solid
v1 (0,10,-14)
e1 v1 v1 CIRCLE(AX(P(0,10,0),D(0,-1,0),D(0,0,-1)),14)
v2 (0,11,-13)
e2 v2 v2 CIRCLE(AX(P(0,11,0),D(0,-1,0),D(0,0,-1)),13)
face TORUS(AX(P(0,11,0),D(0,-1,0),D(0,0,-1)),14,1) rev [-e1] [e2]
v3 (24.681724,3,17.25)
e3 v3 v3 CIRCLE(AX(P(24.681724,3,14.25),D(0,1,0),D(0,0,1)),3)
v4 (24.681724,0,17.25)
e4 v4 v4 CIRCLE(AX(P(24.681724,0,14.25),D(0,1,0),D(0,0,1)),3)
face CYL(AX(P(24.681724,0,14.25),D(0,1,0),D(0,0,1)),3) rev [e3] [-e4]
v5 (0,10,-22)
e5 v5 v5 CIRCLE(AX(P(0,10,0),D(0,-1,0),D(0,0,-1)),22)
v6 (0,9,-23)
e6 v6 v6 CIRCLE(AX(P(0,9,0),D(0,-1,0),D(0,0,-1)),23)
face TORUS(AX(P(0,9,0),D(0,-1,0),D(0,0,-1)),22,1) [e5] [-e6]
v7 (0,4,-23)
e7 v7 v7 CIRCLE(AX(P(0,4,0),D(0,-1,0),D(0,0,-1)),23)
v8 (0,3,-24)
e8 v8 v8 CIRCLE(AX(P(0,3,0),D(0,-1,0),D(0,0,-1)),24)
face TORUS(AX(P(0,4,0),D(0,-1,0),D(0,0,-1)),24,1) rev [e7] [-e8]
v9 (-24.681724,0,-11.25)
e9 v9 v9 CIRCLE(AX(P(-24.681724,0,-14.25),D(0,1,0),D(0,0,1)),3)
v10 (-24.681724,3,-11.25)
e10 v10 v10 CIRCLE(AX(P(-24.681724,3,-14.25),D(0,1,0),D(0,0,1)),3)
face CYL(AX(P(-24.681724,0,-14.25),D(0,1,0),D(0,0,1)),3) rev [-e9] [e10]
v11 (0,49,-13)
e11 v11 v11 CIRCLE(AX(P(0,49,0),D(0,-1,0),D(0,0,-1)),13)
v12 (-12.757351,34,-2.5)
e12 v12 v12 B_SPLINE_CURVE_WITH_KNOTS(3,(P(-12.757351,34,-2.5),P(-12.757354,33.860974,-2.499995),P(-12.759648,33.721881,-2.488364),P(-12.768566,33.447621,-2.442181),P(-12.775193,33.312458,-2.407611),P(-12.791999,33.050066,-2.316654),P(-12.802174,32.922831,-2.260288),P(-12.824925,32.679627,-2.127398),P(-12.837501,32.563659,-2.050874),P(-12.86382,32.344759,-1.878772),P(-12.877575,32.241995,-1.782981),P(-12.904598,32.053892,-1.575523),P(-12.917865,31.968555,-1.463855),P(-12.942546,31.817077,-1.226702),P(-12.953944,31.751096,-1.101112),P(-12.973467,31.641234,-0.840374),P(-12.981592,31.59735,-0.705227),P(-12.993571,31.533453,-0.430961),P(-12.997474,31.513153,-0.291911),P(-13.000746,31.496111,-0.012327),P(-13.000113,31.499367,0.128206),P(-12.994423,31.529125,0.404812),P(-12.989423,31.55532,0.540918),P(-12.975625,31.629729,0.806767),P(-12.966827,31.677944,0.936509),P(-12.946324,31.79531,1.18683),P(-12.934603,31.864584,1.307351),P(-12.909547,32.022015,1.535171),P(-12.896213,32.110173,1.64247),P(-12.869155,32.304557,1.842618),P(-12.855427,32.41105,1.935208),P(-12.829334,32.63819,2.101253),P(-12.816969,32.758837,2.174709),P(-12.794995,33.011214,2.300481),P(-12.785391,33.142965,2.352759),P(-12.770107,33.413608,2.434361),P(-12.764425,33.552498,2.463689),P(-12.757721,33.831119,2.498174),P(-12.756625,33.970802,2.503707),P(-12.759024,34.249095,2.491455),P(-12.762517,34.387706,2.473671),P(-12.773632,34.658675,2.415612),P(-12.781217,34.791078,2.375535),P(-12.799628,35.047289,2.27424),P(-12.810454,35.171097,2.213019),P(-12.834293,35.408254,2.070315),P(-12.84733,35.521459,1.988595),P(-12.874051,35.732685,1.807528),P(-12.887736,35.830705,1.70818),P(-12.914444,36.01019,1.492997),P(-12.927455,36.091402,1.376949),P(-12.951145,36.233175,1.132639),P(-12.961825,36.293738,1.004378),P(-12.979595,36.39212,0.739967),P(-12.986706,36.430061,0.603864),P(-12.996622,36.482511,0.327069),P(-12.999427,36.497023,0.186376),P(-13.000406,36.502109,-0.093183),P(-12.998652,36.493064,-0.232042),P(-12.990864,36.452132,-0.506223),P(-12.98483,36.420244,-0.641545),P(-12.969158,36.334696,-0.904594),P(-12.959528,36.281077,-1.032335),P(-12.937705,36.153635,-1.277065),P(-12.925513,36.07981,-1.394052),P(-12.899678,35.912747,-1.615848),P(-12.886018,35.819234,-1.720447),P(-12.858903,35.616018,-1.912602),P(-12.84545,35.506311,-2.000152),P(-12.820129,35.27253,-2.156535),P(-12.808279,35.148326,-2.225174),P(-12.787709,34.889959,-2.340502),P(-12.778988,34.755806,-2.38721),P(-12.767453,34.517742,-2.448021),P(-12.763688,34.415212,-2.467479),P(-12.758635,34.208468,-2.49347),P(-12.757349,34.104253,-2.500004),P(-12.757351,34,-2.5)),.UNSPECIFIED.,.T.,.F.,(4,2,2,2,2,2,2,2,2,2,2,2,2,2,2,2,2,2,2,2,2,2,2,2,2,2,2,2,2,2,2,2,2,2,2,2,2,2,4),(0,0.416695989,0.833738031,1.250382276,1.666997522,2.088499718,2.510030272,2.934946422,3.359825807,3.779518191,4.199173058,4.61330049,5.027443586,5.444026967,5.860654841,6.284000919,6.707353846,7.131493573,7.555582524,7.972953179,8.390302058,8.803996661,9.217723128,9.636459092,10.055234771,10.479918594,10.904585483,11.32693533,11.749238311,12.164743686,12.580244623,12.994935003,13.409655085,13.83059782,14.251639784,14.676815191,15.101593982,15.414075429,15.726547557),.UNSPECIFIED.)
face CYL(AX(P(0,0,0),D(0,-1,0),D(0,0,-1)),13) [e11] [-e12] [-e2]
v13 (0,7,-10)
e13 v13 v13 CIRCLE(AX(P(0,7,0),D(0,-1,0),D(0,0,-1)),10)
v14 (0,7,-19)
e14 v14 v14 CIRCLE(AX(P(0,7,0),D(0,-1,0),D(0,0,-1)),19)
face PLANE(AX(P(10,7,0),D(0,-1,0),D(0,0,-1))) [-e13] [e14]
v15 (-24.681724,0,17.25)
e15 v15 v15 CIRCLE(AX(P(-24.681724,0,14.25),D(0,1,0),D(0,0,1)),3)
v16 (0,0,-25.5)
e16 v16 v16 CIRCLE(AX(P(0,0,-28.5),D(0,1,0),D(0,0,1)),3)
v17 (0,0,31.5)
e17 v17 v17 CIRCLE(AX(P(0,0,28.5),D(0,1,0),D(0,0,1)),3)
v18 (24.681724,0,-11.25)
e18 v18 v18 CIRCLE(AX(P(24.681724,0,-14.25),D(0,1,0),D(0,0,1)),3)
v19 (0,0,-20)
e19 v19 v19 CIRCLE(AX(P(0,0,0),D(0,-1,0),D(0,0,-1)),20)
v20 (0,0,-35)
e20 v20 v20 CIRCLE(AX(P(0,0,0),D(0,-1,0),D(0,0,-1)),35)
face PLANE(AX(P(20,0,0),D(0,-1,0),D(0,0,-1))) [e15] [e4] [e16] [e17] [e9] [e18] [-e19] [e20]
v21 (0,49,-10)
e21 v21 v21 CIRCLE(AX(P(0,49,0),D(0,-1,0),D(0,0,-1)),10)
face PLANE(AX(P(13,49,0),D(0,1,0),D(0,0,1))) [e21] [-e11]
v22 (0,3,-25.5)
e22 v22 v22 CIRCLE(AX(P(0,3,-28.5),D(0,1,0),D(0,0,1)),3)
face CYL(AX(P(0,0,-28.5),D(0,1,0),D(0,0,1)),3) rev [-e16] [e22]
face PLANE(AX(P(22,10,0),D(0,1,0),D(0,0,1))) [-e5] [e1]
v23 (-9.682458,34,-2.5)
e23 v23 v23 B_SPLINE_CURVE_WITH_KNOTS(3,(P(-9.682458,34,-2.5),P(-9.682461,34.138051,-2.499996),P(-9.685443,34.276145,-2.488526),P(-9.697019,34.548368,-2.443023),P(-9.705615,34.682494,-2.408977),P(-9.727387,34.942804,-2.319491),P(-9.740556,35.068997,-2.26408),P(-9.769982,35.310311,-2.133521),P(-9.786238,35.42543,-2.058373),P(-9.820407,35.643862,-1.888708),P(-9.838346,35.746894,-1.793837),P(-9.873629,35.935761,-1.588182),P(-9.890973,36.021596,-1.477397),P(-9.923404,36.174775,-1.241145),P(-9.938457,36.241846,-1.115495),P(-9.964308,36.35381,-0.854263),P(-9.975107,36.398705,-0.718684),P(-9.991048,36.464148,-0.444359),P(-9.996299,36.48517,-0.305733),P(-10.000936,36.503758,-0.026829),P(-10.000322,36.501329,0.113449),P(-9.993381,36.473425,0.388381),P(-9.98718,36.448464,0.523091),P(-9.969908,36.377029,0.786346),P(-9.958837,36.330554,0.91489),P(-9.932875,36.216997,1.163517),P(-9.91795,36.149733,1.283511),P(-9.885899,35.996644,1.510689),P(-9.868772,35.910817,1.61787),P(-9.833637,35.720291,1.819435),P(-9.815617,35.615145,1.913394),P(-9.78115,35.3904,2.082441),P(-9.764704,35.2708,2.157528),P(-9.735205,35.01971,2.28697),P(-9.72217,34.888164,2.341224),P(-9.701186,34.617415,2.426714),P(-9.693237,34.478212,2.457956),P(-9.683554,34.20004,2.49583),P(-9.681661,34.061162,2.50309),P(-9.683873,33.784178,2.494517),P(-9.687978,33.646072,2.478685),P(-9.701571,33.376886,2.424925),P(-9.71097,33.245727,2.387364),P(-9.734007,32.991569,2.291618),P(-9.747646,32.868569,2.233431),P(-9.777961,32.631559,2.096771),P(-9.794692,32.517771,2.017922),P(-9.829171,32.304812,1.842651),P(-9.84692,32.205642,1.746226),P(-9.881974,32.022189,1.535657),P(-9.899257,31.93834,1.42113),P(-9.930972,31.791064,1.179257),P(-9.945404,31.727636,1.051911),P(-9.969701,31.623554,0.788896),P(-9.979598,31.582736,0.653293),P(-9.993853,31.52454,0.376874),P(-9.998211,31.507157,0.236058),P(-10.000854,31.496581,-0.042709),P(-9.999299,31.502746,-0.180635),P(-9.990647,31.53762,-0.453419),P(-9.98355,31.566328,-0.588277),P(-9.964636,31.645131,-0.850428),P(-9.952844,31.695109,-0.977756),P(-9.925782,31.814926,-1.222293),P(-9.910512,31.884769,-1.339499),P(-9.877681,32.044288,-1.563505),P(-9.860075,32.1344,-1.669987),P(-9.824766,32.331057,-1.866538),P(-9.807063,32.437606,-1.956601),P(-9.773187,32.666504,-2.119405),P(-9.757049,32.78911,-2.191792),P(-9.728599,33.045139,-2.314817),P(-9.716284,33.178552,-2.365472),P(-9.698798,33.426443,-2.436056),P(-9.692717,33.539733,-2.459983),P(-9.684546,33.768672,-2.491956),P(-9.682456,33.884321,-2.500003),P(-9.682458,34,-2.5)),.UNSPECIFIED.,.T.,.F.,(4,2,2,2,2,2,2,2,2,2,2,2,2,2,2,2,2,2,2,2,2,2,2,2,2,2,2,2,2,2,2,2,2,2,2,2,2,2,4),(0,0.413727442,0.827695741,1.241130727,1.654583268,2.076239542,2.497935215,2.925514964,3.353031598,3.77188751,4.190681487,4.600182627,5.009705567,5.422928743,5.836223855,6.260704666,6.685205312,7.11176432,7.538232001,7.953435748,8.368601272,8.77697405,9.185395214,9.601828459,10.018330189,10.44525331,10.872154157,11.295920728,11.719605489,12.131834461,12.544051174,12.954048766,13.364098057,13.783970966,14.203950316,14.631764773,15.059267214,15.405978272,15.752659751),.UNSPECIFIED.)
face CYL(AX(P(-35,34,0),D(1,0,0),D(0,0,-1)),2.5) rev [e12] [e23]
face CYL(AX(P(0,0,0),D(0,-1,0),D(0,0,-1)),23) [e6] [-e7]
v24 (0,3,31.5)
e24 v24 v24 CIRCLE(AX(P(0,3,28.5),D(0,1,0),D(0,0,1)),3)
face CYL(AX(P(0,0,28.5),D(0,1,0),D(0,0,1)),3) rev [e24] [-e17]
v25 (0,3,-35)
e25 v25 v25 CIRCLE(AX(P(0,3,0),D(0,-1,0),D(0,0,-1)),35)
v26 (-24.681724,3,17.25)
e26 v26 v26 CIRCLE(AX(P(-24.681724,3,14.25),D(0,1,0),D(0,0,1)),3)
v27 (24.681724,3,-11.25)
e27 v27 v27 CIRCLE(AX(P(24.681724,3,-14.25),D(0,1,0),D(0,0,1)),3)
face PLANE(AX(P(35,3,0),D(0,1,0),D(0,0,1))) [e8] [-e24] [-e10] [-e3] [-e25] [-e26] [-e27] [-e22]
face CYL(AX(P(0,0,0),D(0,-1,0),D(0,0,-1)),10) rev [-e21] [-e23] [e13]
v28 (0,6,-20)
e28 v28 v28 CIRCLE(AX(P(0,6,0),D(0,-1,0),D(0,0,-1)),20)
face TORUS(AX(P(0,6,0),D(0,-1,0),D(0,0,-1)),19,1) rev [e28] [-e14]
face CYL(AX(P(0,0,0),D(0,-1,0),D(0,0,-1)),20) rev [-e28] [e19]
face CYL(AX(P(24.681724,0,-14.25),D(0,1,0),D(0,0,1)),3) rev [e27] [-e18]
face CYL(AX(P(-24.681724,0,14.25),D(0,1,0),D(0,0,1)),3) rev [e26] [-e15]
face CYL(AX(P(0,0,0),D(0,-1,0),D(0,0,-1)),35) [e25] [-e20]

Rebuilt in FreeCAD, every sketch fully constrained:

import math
import FreeCAD as App
import Part
import Sketcher
from FreeCAD import Vector
Q = App.Units.Quantity

doc = App.newDocument("Part")
body = doc.addObject("PartDesign::Body", "Body")

# Sketch on XY plane
sketch1 = doc.addObject("Sketcher::SketchObject", "Sketch")
body.addObject(sketch1)
sketch1.AttachmentSupport = (doc.XY_Plane, [""])
sketch1.MapMode = "FlatFace"
sketch1.addGeometry([
    Part.LineSegment(Vector(20, 0, 0), Vector(35, 0, 0)),  # 0
    Part.LineSegment(Vector(35, 0, 0), Vector(35, 3, 0)),  # 1
    Part.LineSegment(Vector(35, 3, 0), Vector(24, 3, 0)),  # 2
    Part.ArcOfCircle(Part.Circle(Vector(24, 4, 0), Vector(0, 0, 1), 1), math.radians(-180), math.radians(-90)),  # 3
    Part.LineSegment(Vector(23, 4, 0), Vector(23, 9, 0)),  # 4
    Part.ArcOfCircle(Part.Circle(Vector(22, 9, 0), Vector(0, 0, 1), 1), math.radians(0), math.radians(90)),  # 5
    Part.LineSegment(Vector(22, 10, 0), Vector(14, 10, 0)),  # 6
    Part.ArcOfCircle(Part.Circle(Vector(14, 11, 0), Vector(0, 0, 1), 1), math.radians(-180), math.radians(-90)),  # 7
    Part.LineSegment(Vector(13, 11, 0), Vector(13, 49, 0)),  # 8
    Part.LineSegment(Vector(13, 49, 0), Vector(10, 49, 0)),  # 9
    Part.LineSegment(Vector(10, 49, 0), Vector(10, 7, 0)),  # 10
    Part.LineSegment(Vector(10, 7, 0), Vector(19, 7, 0)),  # 11
    Part.ArcOfCircle(Part.Circle(Vector(19, 6, 0), Vector(0, 0, 1), 1), math.radians(0), math.radians(90)),  # 12
    Part.LineSegment(Vector(20, 6, 0), Vector(20, 0, 0)),  # 13
], False)
sketch1.addConstraint([
    Sketcher.Constraint("Coincident", 0, 2, 1, 1),
    Sketcher.Constraint("Coincident", 1, 2, 2, 1),
    Sketcher.Constraint("Tangent", 2, 2, 3, 2),
    Sketcher.Constraint("Tangent", 3, 1, 4, 1),
    Sketcher.Constraint("Tangent", 4, 2, 5, 1),
    Sketcher.Constraint("Tangent", 5, 2, 6, 1),
    Sketcher.Constraint("Tangent", 6, 2, 7, 2),
    Sketcher.Constraint("Tangent", 7, 1, 8, 1),
    Sketcher.Constraint("Coincident", 8, 2, 9, 1),
    Sketcher.Constraint("Coincident", 9, 2, 10, 1),
    Sketcher.Constraint("Coincident", 10, 2, 11, 1),
    Sketcher.Constraint("Tangent", 11, 2, 12, 2),
    Sketcher.Constraint("Tangent", 12, 1, 13, 1),
    Sketcher.Constraint("Coincident", 13, 2, 0, 1),
    Sketcher.Constraint("Horizontal", 0),
    Sketcher.Constraint("Vertical", 1),
    Sketcher.Constraint("Horizontal", 2),
    Sketcher.Constraint("Vertical", 4),
    Sketcher.Constraint("Horizontal", 6),
    Sketcher.Constraint("Vertical", 8),
    Sketcher.Constraint("Horizontal", 9),
    Sketcher.Constraint("Vertical", 10),
    Sketcher.Constraint("Horizontal", 11),
    Sketcher.Constraint("Vertical", 13),
    Sketcher.Constraint("Equal", 3, 5),
    Sketcher.Constraint("Equal", 5, 7),
    Sketcher.Constraint("Equal", 7, 12),
    Sketcher.Constraint("PointOnObject", 0, 2, -1),
    Sketcher.Constraint("Equal", 9, 1),
    Sketcher.Constraint("Radius", 3, Q("1 mm")),
    Sketcher.Constraint("DistanceX", 0, 1, 0, 2, Q("15 mm")),
    Sketcher.Constraint("DistanceX", 2, 2, 2, 1, Q("11 mm")),
    Sketcher.Constraint("DistanceX", 6, 2, 6, 1, Q("8 mm")),
    Sketcher.Constraint("DistanceX", 9, 2, 9, 1, Q("3 mm")),
    Sketcher.Constraint("DistanceY", 4, 1, 4, 2, Q("5 mm")),
    Sketcher.Constraint("DistanceY", 8, 1, 8, 2, Q("38 mm")),
    Sketcher.Constraint("DistanceY", 10, 2, 10, 1, Q("42 mm")),
    Sketcher.Constraint("DistanceX", -1, 1, 3, 3, Q("24 mm")),
])
revolution = doc.addObject("PartDesign::Revolution", "Revolution")
body.addObject(revolution)
revolution.Profile = sketch1
revolution.ReferenceAxis = (sketch1, ["V_Axis"])
revolution.Angle = 360

# Sketch on XZ plane
sketch2 = doc.addObject("Sketcher::SketchObject", "Sketch001")
body.addObject(sketch2)
sketch2.AttachmentSupport = (doc.XZ_Plane, [""])
sketch2.MapMode = "FlatFace"
sketch2.AttachmentOffset = App.Placement(Vector(0, 0, -3), App.Rotation())
sketch2.addGeometry([
    Part.Circle(Vector(0, -28.5, 0), Vector(0, 0, 1), 3),  # 0
    Part.Circle(Vector(24.7, -14.2, 0), Vector(0, 0, 1), 3),  # 1
    Part.Circle(Vector(24.7, 14.2, 0), Vector(0, 0, 1), 3),  # 2
    Part.Circle(Vector(0, 28.5, 0), Vector(0, 0, 1), 3),  # 3
    Part.Circle(Vector(-24.7, 14.2, 0), Vector(0, 0, 1), 3),  # 4
    Part.Circle(Vector(-24.7, -14.2, 0), Vector(0, 0, 1), 3),  # 5
], False)
sketch2.addConstraint([
    Sketcher.Constraint("Equal", 0, 1),
    Sketcher.Constraint("Equal", 1, 2),
    Sketcher.Constraint("Equal", 2, 3),
    Sketcher.Constraint("Equal", 3, 4),
    Sketcher.Constraint("Equal", 4, 5),
    Sketcher.Constraint("Symmetric", 0, 3, 3, 3, -1, 1),
    Sketcher.Constraint("Symmetric", 1, 3, 4, 3, -1, 1),
    Sketcher.Constraint("Symmetric", 2, 3, 5, 3, -1, 1),
    Sketcher.Constraint("Symmetric", 2, 3, 4, 3, -2),
    Sketcher.Constraint("PointOnObject", 0, 3, -2),
    Sketcher.Constraint("Diameter", 0, Q("6 mm")),
    Sketcher.Constraint("DistanceY", 0, 3, 3, 3, Q("57 mm")),
    Sketcher.Constraint("DistanceY", 1, 3, 2, 3, Q("28.5 mm")),
    Sketcher.Constraint("DistanceX", 4, 3, 2, 3, Q("49.363448 mm")),
])
pocket1 = doc.addObject("PartDesign::Pocket", "Pocket")
body.addObject(pocket1)
pocket1.Profile = sketch2
pocket1.Type = "ThroughAll"
pocket1.Reversed = True

# Sketch on YZ plane
sketch3 = doc.addObject("Sketcher::SketchObject", "Sketch002")
body.addObject(sketch3)
sketch3.AttachmentSupport = (doc.YZ_Plane, [""])
sketch3.MapMode = "FlatFace"
sketch3.addGeometry(Part.Circle(Vector(34, 0, 0), Vector(0, 0, 1), 2.5), False)
sketch3.addConstraint([
    Sketcher.Constraint("PointOnObject", 0, 3, -1),
    Sketcher.Constraint("Diameter", 0, Q("5 mm")),
    Sketcher.Constraint("DistanceX", -1, 1, 0, 3, Q("34 mm")),
])
pocket2 = doc.addObject("PartDesign::Pocket", "Pocket001")
body.addObject(pocket2)
pocket2.Profile = sketch3
pocket2.Type = "ThroughAll"

doc.recompute()
